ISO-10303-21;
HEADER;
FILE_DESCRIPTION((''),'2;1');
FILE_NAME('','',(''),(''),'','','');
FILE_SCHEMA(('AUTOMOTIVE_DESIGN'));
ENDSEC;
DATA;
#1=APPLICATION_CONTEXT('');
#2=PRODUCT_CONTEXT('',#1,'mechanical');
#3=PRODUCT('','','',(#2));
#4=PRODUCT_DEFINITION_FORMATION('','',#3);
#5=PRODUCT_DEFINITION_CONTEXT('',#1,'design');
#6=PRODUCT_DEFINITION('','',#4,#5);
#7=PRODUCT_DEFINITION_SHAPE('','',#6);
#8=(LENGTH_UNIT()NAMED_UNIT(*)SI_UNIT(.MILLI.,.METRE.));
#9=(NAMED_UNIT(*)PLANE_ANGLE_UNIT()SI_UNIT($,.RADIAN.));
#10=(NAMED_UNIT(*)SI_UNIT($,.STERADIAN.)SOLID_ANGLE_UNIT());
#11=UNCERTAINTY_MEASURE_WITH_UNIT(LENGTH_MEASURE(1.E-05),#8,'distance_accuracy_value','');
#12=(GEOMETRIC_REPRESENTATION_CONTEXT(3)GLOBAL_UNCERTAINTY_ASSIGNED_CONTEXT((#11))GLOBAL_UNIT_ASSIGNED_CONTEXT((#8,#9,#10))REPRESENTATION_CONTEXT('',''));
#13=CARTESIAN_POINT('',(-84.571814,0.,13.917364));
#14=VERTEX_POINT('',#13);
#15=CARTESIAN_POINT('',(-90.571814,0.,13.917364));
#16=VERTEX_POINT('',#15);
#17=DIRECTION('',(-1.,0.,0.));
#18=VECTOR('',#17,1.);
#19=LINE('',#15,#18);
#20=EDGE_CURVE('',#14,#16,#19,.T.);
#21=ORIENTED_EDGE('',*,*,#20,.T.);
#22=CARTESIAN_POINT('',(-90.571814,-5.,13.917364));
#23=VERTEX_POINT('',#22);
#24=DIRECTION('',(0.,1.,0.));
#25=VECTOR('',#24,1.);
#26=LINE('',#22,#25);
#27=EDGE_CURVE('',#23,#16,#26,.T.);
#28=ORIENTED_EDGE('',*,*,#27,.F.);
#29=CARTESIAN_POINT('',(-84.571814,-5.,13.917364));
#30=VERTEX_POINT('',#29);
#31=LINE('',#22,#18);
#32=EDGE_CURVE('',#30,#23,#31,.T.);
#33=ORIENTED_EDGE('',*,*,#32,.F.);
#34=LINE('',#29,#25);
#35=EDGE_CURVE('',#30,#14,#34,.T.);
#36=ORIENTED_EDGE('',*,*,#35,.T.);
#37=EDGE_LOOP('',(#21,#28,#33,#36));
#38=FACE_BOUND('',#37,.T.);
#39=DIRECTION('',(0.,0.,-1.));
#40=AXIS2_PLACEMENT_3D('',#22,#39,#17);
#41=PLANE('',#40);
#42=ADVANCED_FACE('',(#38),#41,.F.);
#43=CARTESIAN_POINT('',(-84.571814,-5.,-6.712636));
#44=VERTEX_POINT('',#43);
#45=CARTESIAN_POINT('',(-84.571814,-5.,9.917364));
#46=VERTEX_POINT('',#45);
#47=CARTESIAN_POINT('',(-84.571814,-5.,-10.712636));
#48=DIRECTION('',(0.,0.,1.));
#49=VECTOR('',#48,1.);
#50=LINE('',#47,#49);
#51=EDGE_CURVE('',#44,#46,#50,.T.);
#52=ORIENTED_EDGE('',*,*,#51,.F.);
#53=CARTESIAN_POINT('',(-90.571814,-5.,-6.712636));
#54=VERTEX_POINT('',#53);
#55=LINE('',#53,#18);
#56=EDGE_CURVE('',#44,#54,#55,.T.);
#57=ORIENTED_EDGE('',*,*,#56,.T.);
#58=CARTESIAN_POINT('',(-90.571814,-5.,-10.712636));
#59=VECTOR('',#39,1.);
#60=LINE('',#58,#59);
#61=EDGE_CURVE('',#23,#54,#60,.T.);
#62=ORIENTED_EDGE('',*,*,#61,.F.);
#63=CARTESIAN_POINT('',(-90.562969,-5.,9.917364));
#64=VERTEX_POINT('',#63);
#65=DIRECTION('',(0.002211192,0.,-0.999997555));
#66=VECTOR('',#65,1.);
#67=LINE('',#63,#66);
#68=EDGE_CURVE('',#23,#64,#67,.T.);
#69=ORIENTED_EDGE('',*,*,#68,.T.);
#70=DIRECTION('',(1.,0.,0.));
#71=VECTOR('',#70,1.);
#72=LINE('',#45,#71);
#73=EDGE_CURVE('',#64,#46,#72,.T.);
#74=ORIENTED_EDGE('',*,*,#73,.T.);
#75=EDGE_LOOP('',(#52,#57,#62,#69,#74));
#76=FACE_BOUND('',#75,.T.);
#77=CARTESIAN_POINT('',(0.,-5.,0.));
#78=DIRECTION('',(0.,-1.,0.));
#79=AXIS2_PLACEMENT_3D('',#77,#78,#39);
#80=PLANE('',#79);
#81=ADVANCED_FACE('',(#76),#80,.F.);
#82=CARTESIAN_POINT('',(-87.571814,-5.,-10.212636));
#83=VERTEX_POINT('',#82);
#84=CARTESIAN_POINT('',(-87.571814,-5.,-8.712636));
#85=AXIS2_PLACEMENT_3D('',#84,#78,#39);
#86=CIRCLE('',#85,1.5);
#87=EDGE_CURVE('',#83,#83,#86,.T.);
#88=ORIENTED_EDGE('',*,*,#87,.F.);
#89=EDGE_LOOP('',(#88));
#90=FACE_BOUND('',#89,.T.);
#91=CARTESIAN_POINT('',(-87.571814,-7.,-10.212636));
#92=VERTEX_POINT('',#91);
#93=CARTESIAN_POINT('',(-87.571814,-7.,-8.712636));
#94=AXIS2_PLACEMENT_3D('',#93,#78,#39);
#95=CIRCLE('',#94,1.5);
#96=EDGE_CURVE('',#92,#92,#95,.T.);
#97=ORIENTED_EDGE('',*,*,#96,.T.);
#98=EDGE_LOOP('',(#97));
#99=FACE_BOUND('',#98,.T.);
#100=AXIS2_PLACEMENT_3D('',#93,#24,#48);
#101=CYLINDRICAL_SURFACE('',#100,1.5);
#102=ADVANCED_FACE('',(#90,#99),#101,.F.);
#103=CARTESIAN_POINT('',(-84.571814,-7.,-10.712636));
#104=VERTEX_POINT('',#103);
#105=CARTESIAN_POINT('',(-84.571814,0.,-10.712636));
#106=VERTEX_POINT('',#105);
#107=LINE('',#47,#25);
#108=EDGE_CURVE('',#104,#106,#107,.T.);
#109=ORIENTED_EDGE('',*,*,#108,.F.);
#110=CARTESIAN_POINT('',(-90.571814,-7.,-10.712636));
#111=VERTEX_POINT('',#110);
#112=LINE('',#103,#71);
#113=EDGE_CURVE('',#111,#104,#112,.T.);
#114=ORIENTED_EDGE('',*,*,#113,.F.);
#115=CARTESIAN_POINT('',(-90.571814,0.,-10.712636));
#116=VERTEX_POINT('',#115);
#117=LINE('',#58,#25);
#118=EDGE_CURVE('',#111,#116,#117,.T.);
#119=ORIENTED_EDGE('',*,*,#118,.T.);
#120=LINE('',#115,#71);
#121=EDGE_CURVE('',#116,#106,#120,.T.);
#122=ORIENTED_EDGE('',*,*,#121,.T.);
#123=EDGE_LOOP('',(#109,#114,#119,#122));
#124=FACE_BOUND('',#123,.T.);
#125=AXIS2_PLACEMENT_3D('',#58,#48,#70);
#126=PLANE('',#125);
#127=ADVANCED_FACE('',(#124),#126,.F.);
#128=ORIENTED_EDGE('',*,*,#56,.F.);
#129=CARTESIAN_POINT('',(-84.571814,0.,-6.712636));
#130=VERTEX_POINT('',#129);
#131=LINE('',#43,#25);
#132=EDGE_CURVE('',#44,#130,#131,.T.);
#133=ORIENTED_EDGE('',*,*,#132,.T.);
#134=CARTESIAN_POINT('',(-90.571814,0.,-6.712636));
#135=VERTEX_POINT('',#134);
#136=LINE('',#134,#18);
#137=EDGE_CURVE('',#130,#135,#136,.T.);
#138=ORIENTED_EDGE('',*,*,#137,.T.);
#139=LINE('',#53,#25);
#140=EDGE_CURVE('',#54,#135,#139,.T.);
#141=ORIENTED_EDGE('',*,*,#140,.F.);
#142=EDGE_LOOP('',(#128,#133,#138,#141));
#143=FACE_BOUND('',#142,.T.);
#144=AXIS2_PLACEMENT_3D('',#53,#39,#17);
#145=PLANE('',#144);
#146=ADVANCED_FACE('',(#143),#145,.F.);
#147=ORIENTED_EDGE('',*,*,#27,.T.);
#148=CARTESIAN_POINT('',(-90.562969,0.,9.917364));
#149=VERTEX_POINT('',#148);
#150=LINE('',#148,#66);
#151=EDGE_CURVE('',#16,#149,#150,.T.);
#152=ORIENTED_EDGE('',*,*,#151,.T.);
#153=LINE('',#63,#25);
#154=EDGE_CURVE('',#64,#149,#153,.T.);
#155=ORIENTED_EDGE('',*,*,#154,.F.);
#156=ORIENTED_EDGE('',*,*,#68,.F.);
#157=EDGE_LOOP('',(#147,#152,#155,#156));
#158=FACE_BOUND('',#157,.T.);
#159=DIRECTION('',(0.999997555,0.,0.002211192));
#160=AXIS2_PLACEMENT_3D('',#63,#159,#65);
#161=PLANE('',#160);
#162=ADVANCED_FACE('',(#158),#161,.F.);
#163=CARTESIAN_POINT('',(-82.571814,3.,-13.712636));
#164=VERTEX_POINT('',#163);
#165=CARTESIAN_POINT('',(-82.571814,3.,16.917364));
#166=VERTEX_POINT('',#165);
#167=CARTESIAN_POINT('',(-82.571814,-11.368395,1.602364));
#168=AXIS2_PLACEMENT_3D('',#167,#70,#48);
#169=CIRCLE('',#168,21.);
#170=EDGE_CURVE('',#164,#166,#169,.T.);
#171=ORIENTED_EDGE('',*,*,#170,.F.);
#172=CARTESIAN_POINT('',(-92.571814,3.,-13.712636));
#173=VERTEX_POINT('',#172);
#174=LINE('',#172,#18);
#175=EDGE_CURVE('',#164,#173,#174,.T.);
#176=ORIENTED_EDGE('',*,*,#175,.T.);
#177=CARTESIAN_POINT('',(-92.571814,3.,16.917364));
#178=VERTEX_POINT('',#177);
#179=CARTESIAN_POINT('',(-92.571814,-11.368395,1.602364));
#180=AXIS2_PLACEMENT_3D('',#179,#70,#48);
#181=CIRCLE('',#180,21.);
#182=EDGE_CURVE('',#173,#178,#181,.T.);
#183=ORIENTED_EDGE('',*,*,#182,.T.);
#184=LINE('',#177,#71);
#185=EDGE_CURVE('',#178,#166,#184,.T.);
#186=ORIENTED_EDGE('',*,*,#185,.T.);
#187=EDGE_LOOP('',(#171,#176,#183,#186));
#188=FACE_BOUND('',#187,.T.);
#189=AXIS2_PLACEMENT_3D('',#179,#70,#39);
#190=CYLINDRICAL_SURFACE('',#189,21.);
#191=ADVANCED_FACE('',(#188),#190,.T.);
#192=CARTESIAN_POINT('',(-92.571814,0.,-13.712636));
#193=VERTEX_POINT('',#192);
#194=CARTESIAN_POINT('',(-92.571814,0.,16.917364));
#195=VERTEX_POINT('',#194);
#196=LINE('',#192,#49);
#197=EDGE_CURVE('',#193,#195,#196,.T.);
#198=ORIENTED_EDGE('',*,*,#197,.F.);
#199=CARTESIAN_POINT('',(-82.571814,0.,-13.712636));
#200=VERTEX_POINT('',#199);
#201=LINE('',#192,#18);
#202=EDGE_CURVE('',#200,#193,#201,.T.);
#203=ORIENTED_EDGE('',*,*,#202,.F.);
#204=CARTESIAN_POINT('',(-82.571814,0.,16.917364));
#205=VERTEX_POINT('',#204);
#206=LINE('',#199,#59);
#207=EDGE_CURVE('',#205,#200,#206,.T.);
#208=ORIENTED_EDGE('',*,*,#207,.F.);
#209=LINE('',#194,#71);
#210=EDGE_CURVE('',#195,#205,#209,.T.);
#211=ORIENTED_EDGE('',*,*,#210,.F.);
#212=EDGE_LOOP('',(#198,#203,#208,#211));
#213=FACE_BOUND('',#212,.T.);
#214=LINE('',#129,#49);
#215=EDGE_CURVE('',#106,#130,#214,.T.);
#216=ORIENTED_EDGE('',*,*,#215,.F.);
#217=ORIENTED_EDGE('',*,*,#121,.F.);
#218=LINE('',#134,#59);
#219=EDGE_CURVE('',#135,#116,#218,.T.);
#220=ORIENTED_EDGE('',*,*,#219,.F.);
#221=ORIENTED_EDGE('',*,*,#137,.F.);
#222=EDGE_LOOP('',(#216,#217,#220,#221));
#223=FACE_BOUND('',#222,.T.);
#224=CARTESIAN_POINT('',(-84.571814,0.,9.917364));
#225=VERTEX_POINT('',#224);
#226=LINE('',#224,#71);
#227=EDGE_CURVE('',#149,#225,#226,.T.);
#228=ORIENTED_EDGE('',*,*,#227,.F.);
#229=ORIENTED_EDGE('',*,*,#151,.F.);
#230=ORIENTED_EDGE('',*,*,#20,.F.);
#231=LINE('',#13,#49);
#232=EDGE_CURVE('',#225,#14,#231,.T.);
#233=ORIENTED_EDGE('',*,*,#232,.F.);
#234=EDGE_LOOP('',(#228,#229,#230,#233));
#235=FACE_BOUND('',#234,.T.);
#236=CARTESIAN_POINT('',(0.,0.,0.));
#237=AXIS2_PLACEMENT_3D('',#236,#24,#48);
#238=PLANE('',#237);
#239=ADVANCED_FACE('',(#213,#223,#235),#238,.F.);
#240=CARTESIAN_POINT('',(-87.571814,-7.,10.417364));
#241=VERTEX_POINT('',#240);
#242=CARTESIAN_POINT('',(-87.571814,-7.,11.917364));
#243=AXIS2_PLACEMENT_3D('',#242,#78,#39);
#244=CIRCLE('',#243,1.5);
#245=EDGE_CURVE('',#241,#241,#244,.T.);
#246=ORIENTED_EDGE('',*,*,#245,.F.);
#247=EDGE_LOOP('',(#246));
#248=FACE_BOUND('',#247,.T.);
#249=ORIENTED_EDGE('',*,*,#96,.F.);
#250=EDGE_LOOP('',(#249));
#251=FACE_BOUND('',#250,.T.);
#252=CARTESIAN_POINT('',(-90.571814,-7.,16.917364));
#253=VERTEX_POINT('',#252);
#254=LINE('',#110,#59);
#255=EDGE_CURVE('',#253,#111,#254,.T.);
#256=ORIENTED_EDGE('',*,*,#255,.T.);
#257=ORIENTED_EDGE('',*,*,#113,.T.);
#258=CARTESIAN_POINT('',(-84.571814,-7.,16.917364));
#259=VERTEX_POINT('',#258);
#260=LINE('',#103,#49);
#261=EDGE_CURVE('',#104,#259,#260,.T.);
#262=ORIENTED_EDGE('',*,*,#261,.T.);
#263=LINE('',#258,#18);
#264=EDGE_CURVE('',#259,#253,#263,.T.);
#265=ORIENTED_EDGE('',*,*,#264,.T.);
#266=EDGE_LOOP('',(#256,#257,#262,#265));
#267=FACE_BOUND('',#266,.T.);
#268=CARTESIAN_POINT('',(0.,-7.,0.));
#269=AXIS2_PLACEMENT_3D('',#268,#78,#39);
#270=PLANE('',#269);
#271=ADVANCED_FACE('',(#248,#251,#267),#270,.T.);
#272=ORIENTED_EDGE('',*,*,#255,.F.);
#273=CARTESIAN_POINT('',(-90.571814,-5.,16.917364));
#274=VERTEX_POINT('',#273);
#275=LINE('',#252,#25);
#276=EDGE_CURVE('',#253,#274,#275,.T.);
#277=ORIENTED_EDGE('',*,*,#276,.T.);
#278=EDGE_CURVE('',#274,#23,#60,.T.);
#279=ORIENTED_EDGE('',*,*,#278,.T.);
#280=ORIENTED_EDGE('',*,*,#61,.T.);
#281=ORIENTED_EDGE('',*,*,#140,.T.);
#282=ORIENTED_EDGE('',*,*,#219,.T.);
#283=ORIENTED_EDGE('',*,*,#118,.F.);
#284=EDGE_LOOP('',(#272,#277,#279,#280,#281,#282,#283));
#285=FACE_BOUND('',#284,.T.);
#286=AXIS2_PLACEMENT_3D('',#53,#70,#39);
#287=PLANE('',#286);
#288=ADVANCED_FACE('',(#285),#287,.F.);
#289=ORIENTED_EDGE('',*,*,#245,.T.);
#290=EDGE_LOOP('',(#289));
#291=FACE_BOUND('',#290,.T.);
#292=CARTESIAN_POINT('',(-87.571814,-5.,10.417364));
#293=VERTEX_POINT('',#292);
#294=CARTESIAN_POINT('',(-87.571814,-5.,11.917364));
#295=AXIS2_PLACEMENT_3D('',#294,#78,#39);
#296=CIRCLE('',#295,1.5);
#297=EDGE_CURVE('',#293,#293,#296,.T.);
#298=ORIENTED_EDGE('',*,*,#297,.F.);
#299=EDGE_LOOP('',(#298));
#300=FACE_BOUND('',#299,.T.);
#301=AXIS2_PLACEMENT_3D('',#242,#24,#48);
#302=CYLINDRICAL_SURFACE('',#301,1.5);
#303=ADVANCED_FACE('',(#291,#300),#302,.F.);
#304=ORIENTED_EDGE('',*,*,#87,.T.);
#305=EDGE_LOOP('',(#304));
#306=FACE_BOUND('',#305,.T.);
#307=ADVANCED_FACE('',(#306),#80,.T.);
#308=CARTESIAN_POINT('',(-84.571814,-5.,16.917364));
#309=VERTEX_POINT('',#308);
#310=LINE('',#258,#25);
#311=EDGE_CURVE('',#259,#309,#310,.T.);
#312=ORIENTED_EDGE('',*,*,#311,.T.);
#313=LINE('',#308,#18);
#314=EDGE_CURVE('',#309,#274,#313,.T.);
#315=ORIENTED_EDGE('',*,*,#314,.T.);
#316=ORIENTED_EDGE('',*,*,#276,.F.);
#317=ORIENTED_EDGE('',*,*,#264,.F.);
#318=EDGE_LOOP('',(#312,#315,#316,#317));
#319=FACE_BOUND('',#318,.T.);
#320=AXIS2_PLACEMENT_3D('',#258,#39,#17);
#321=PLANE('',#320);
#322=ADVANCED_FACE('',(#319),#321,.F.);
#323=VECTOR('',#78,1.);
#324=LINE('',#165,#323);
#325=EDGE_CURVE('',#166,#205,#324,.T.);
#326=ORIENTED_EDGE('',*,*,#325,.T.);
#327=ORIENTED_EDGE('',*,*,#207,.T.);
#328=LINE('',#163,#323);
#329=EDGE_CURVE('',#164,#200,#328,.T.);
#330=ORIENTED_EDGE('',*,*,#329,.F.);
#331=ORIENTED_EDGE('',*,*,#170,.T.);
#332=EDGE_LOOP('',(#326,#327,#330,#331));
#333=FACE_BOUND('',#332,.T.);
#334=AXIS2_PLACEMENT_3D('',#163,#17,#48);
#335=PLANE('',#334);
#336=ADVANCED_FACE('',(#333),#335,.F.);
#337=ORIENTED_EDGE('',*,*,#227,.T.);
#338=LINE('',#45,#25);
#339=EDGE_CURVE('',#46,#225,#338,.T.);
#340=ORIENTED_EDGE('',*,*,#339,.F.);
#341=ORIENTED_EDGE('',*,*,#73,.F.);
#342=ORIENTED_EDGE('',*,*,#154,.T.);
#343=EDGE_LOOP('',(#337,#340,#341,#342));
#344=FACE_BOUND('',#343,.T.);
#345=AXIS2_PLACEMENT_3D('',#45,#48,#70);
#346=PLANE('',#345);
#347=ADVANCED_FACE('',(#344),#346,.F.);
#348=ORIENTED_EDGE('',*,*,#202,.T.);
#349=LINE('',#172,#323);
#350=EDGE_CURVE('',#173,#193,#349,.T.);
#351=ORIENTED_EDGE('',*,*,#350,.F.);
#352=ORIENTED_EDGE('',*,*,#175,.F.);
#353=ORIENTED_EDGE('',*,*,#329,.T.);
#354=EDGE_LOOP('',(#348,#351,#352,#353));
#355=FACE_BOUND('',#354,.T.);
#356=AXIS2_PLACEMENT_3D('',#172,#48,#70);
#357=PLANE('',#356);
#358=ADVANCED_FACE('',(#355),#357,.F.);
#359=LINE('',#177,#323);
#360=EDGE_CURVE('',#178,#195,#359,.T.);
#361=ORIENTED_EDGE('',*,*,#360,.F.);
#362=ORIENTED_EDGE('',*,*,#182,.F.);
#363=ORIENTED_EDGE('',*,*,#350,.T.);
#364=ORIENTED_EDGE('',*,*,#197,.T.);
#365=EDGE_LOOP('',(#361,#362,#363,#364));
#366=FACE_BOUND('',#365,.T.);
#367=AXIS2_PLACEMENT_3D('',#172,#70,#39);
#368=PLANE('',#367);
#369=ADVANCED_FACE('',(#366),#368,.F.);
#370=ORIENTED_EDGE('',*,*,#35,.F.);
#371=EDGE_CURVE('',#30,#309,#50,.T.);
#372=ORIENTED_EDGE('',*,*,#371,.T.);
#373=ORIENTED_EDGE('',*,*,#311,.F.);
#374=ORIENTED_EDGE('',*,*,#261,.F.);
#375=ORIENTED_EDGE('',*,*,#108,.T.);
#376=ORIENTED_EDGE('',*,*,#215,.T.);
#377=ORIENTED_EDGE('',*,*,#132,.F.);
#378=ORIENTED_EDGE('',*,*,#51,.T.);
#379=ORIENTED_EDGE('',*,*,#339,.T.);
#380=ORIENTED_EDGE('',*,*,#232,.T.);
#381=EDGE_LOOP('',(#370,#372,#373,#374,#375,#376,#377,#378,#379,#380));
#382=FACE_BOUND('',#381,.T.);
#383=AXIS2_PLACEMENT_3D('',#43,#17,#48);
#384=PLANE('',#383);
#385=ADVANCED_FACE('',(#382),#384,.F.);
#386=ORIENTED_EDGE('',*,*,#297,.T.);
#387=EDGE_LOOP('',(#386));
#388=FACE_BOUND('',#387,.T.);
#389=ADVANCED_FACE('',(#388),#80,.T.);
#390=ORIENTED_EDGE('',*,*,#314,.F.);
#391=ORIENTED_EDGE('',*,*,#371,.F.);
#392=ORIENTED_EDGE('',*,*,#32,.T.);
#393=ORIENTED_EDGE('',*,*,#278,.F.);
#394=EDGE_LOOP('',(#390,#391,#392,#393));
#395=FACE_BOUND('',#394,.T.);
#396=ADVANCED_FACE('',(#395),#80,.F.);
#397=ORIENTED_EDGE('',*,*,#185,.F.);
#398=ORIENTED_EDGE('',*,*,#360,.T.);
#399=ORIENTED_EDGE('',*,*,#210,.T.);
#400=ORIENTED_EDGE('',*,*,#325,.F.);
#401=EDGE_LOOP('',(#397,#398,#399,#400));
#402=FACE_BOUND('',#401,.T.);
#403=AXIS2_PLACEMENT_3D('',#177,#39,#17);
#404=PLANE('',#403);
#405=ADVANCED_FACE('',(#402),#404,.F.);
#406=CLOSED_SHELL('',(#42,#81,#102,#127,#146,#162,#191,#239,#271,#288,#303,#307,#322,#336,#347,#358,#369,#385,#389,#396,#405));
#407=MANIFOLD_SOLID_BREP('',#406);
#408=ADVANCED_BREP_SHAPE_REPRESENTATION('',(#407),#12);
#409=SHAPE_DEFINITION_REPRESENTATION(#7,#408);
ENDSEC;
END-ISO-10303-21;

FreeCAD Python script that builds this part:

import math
import FreeCAD as App
import Part
import Sketcher

V = App.Vector
Q = App.Units.Quantity


def add_polygon(sketch, points):
    """Adds a closed chain of lines whose ends are joined by coincident constraints."""
    first, n = sketch.GeometryCount, len(points)
    for a, b in zip(points, points[1:] + points[:1]):
        sketch.addGeometry(Part.LineSegment(App.Vector(*a, 0), App.Vector(*b, 0)), False)
    for i in range(n):
        sketch.addConstraint(Sketcher.Constraint("Coincident", first + i, 2, first + (i + 1) % n, 1))

doc = App.newDocument("Part")
body = doc.addObject("PartDesign::Body", "Body")

sketch1 = body.newObject("Sketcher::SketchObject", "Sketch")
sketch1.AttachmentSupport = (doc.getObject("XZ_Plane"), [""])
sketch1.MapMode = "FlatFace"
add_polygon(sketch1, [(-93, -14), (-93, 17), (-83, 17), (-83, -14)])
sketch1.addConstraint(Sketcher.Constraint("Vertical", 0))
sketch1.addConstraint(Sketcher.Constraint("Horizontal", 1))
sketch1.addConstraint(Sketcher.Constraint("Vertical", 2))
sketch1.addConstraint(Sketcher.Constraint("Horizontal", 3))
sketch1.addConstraint(Sketcher.Constraint("DistanceX", 1, 1, 1, 2, Q("10 mm")))
sketch1.addConstraint(Sketcher.Constraint("DistanceY", 0, 1, 0, 2, Q("30.63 mm")))
sketch1.addConstraint(Sketcher.Constraint("DistanceX", 0, 2, -1, 1, Q("92.571814 mm")))
sketch1.addConstraint(Sketcher.Constraint("DistanceY", -1, 1, 0, 2, Q("16.917364 mm")))
pad1 = body.newObject("PartDesign::Pad", "Pad")
pad1.Profile = sketch1
pad1.Length = 3
pad1.Reversed = True

sketch2 = body.newObject("Sketcher::SketchObject", "Sketch001")
sketch2.AttachmentSupport = (doc.getObject("YZ_Plane"), [""])
sketch2.MapMode = "FlatFace"
sketch2.AttachmentOffset = App.Placement(V(0, 0, -82.571814), App.Rotation())
sketch2.addGeometry(Part.LineSegment(V(3, 17, 0), V(3, -14, 0)), False)
sketch2.addGeometry(Part.ArcOfCircle(Part.Circle(V(-11, 2, 0), V(0, 0, 1), 21), math.radians(-47), math.radians(47)), False)
sketch2.addConstraint(Sketcher.Constraint("Coincident", 0, 1, 1, 2))
sketch2.addConstraint(Sketcher.Constraint("Coincident", 1, 1, 0, 2))
sketch2.addConstraint(Sketcher.Constraint("Vertical", 0))
sketch2.addConstraint(Sketcher.Constraint("Radius", 1, Q("21 mm")))
sketch2.addConstraint(Sketcher.Constraint("DistanceX", -1, 1, 0, 1, Q("3 mm")))
sketch2.addConstraint(Sketcher.Constraint("DistanceY", 0, 2, 0, 1, Q("30.63 mm")))
sketch2.addConstraint(Sketcher.Constraint("DistanceY", -1, 1, 1, 3, Q("1.602364 mm")))
pad2 = body.newObject("PartDesign::Pad", "Pad001")
pad2.Profile = sketch2
pad2.Length = 10
pad2.Reversed = True

sketch3 = body.newObject("Sketcher::SketchObject", "Sketch002")
sketch3.AttachmentSupport = (doc.getObject("XZ_Plane"), [""])
sketch3.MapMode = "FlatFace"
add_polygon(sketch3, [(-90.6, -6.7), (-90.6, -10.7), (-84.6, -10.7), (-84.6, -6.7)])
add_polygon(sketch3, [(-90.6, 13.9), (-90.6, 9.9), (-84.6, 9.9), (-84.6, 13.9)])
sketch3.addConstraint(Sketcher.Constraint("Vertical", 0))
sketch3.addConstraint(Sketcher.Constraint("Horizontal", 1))
sketch3.addConstraint(Sketcher.Constraint("Vertical", 2))
sketch3.addConstraint(Sketcher.Constraint("Horizontal", 3))
sketch3.addConstraint(Sketcher.Constraint("Horizontal", 5))
sketch3.addConstraint(Sketcher.Constraint("Vertical", 6))
sketch3.addConstraint(Sketcher.Constraint("Horizontal", 7))
sketch3.addConstraint(Sketcher.Constraint("Vertical", 2, 2, 5, 2))
sketch3.addConstraint(Sketcher.Constraint("Vertical", 3, 2, 7, 2))
sketch3.addConstraint(Sketcher.Constraint("Equal", 2, 6))
sketch3.addConstraint(Sketcher.Constraint("DistanceX", 1, 1, 1, 2, Q("6 mm")))
sketch3.addConstraint(Sketcher.Constraint("DistanceY", 0, 2, 0, 1, Q("4 mm")))
sketch3.addConstraint(Sketcher.Constraint("DistanceY", 3, 2, 4, 2, Q("16.63 mm")))
sketch3.addConstraint(Sketcher.Constraint("DistanceX", 5, 1, 5, 2, Q("5.991155 mm")))
sketch3.addConstraint(Sketcher.Constraint("DistanceX", 4, 2, -1, 1, Q("90.562969 mm")))
sketch3.addConstraint(Sketcher.Constraint("DistanceY", 0, 2, -1, 1, Q("10.712636 mm")))
pad3 = body.newObject("PartDesign::Pad", "Pad002")
pad3.Profile = sketch3
pad3.Length = 5

sketch4 = body.newObject("Sketcher::SketchObject", "Sketch003")
sketch4.AttachmentSupport = (doc.getObject("XZ_Plane"), [""])
sketch4.MapMode = "FlatFace"
sketch4.AttachmentOffset = App.Placement(V(0, 0, 5), App.Rotation())
add_polygon(sketch4, [(-90.6, 16.9), (-90.6, -10.7), (-84.6, -10.7), (-84.6, 16.9)])
sketch4.addGeometry(Part.Circle(V(-87.6, -8.7, 0), V(0, 0, 1), 1.5), False)
sketch4.addGeometry(Part.Circle(V(-87.6, 11.9, 0), V(0, 0, 1), 1.5), False)
sketch4.addConstraint(Sketcher.Constraint("Vertical", 0))
sketch4.addConstraint(Sketcher.Constraint("Horizontal", 1))
sketch4.addConstraint(Sketcher.Constraint("Vertical", 2))
sketch4.addConstraint(Sketcher.Constraint("Horizontal", 3))
sketch4.addConstraint(Sketcher.Constraint("Equal", 4, 5))
sketch4.addConstraint(Sketcher.Constraint("Vertical", 4, 3, 5, 3))
sketch4.addConstraint(Sketcher.Constraint("Diameter", 4, Q("3 mm")))
sketch4.addConstraint(Sketcher.Constraint("DistanceX", 1, 1, 1, 2, Q("6 mm")))
sketch4.addConstraint(Sketcher.Constraint("DistanceX", 0, 2, 4, 3, Q("3 mm")))
sketch4.addConstraint(Sketcher.Constraint("DistanceY", 0, 2, 4, 3, Q("2 mm")))
sketch4.addConstraint(Sketcher.Constraint("DistanceY", 5, 3, 2, 2, Q("5 mm")))
sketch4.addConstraint(Sketcher.Constraint("DistanceY", 0, 2, 0, 1, Q("27.63 mm")))
sketch4.addConstraint(Sketcher.Constraint("DistanceX", 4, 3, -1, 1, Q("87.571814 mm")))
sketch4.addConstraint(Sketcher.Constraint("DistanceY", 4, 3, -1, 1, Q("8.712636 mm")))
pad4 = body.newObject("PartDesign::Pad", "Pad003")
pad4.Profile = sketch4
pad4.Length = 2

doc.recompute()
